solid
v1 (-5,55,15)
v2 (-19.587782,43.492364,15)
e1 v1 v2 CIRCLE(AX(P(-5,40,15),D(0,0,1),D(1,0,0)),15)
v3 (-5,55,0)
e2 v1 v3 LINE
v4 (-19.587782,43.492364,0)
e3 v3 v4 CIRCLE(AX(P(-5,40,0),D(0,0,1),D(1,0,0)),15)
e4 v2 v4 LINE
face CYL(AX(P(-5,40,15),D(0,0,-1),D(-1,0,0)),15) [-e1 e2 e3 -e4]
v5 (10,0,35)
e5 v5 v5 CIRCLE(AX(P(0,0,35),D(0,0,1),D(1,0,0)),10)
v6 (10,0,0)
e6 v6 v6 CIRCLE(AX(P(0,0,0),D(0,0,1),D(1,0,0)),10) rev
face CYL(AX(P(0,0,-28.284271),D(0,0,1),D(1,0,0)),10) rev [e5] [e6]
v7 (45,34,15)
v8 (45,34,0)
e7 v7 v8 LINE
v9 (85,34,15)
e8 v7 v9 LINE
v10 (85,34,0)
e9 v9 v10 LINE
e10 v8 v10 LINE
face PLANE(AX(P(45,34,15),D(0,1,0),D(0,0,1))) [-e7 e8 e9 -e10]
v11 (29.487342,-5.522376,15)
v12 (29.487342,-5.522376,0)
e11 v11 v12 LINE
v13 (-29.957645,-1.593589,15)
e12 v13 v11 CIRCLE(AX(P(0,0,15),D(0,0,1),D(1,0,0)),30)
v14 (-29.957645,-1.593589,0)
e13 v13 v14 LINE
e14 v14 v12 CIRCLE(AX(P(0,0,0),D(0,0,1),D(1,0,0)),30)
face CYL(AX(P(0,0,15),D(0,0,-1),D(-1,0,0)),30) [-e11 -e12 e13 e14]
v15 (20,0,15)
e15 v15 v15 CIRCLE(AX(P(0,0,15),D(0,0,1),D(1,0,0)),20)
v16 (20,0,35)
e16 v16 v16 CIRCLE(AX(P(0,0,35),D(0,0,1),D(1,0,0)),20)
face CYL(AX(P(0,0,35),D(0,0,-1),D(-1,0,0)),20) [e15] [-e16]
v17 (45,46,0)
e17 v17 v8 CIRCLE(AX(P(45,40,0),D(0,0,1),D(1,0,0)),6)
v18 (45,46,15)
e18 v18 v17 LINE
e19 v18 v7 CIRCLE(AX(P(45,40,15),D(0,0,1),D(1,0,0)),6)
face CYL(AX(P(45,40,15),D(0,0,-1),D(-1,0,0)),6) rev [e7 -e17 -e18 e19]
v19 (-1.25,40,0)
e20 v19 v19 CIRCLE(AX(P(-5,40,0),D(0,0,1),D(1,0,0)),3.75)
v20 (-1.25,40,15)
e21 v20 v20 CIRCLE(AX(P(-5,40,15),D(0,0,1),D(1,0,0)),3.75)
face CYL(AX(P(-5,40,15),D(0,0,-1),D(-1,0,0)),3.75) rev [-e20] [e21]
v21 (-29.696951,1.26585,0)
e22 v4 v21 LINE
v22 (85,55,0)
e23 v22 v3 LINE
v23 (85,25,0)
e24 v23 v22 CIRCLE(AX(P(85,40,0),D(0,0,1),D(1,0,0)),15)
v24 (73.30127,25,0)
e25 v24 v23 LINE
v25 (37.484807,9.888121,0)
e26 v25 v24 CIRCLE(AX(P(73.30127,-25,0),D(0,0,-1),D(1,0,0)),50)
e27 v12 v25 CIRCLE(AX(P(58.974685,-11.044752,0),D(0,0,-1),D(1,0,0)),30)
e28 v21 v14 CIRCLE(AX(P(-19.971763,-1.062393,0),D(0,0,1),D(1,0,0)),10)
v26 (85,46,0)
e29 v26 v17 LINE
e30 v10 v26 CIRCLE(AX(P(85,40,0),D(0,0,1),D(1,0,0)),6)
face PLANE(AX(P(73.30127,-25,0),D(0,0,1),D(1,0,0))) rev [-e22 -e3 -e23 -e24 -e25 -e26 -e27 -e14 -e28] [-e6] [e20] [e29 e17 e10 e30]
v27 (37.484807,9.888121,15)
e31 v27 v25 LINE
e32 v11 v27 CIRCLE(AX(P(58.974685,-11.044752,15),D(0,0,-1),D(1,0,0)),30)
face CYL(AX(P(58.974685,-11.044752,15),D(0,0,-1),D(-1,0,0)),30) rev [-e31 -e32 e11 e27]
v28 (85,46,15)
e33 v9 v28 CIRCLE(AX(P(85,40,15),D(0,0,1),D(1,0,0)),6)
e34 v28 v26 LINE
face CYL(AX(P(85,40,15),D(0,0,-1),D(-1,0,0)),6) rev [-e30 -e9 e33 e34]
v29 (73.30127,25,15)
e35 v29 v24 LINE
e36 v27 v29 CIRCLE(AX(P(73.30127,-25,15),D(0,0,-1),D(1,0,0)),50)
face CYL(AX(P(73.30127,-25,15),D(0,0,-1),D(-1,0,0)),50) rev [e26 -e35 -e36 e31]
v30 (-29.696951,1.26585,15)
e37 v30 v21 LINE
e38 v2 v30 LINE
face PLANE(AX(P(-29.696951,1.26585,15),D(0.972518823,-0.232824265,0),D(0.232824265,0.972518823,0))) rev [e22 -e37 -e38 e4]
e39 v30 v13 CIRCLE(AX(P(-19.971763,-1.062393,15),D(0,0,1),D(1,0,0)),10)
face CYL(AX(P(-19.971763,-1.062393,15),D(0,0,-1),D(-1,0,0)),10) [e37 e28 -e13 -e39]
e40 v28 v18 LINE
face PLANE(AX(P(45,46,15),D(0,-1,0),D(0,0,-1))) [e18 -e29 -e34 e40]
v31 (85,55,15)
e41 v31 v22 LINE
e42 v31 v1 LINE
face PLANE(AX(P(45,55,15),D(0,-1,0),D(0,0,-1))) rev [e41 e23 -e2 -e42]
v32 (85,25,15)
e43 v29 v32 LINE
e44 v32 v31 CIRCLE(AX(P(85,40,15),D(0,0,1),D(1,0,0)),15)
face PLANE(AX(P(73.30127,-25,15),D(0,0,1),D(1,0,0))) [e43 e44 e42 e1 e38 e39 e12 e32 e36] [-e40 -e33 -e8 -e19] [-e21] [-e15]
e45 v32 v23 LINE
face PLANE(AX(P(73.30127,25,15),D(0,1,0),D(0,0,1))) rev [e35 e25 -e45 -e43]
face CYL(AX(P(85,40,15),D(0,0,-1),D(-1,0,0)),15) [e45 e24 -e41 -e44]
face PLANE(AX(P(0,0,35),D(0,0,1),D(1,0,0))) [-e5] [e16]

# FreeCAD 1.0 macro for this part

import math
import FreeCAD as App
import Part
import Sketcher
Q = App.Units.Quantity

doc = App.newDocument("Part")
params = doc.addObject("Spreadsheet::Sheet", "Params")
for row, (alias, value) in enumerate([
    ("sketch1_radius", "15 mm"),
    ("sketch1_radius2", "10 mm"),
    ("sketch1_radius3", "30 mm"),
    ("sketch1_radius4", "50 mm"),
    ("sketch1_radius5", "6 mm"),
    ("pad1_length", "15 mm"),
    ("sketch2_diameter", "40 mm"),
    ("pad2_length", "20 mm"),
    ("sketch3_diameter", "20 mm"),
    ("pocket1_length", "35 mm"),
], start=1):
    params.set(f"A{row}", alias)
    params.set(f"B{row}", "=" + value)
    params.setAlias(f"B{row}", alias)

body = doc.addObject("PartDesign::Body", "Body")

sketch1 = body.newObject("Sketcher::SketchObject", "Sketch")
sketch1.AttachmentSupport = (doc.getObject("XY_Plane"), [""])
sketch1.MapMode = "FlatFace"
sketch1.addGeometry(Part.ArcOfCircle(Part.Circle(App.Vector(85, 40, 0), App.Vector(0, 0, 1), 15), math.radians(-90), math.radians(90)), False)
sketch1.addGeometry(Part.LineSegment(App.Vector(85, 55, 0), App.Vector(-5, 55, 0)), False)
sketch1.addGeometry(Part.ArcOfCircle(Part.Circle(App.Vector(-5, 40, 0), App.Vector(0, 0, 1), 15), math.radians(90), math.radians(167)), False)
sketch1.addGeometry(Part.LineSegment(App.Vector(-19.6, 43.5, 0), App.Vector(-29.7, 1.3, 0)), False)
sketch1.addGeometry(Part.ArcOfCircle(Part.Circle(App.Vector(-20, -1.1, 0), App.Vector(0, 0, 1), 10), math.radians(166.54), math.radians(183.04)), False)
sketch1.addGeometry(Part.ArcOfCircle(Part.Circle(App.Vector(0, 0, 0), App.Vector(0, 0, 1), 30), math.radians(-177), math.radians(-11)), False)
sketch1.addGeometry(Part.ArcOfCircle(Part.Circle(App.Vector(59, -11, 0), App.Vector(0, 0, 1), 30), math.radians(136), math.radians(169)), False)
sketch1.addGeometry(Part.ArcOfCircle(Part.Circle(App.Vector(73.3, -25, 0), App.Vector(0, 0, 1), 50), math.radians(90), math.radians(136)), False)
sketch1.addGeometry(Part.LineSegment(App.Vector(73.3, 25, 0), App.Vector(85, 25, 0)), False)
sketch1.addGeometry(Part.LineSegment(App.Vector(45, 46, 0), App.Vector(85, 46, 0)), False)
sketch1.addGeometry(Part.ArcOfCircle(Part.Circle(App.Vector(85, 40, 0), App.Vector(0, 0, 1), 6), math.radians(-90), math.radians(90)), False)
sketch1.addGeometry(Part.LineSegment(App.Vector(85, 34, 0), App.Vector(45, 34, 0)), False)
sketch1.addGeometry(Part.ArcOfCircle(Part.Circle(App.Vector(45, 40, 0), App.Vector(0, 0, 1), 6), math.radians(90), math.radians(270)), False)
sketch1.addGeometry(Part.Circle(App.Vector(-5, 40, 0), App.Vector(0, 0, 1), 3.8), False)
sketch1.addConstraint(Sketcher.Constraint("Tangent", 0, 2, 1, 1))
sketch1.addConstraint(Sketcher.Constraint("Tangent", 1, 2, 2, 1))
sketch1.addConstraint(Sketcher.Constraint("Tangent", 2, 2, 3, 1))
sketch1.addConstraint(Sketcher.Constraint("Tangent", 3, 2, 4, 1))
sketch1.addConstraint(Sketcher.Constraint("Tangent", 4, 2, 5, 1))
sketch1.addConstraint(Sketcher.Constraint("Tangent", 5, 2, 6, 2))
sketch1.addConstraint(Sketcher.Constraint("Tangent", 6, 1, 7, 2))
sketch1.addConstraint(Sketcher.Constraint("Tangent", 7, 1, 8, 1))
sketch1.addConstraint(Sketcher.Constraint("Tangent", 8, 2, 0, 1))
sketch1.addConstraint(Sketcher.Constraint("Tangent", 9, 2, 10, 2))
sketch1.addConstraint(Sketcher.Constraint("Tangent", 10, 1, 11, 1))
sketch1.addConstraint(Sketcher.Constraint("Tangent", 11, 2, 12, 2))
sketch1.addConstraint(Sketcher.Constraint("Tangent", 12, 1, 9, 1))
sketch1.addConstraint(Sketcher.Constraint("Horizontal", 1))
sketch1.addConstraint(Sketcher.Constraint("Horizontal", 8))
sketch1.addConstraint(Sketcher.Constraint("Horizontal", 9))
sketch1.addConstraint(Sketcher.Constraint("Horizontal", 11))
sketch1.addConstraint(Sketcher.Constraint("Coincident", 5, 3, -1, 1))
sketch1.addConstraint(Sketcher.Constraint("Coincident", 10, 3, 0, 3))
sketch1.addConstraint(Sketcher.Constraint("Coincident", 13, 3, 2, 3))
sketch1.addConstraint(Sketcher.Constraint("Equal", 0, 2))
sketch1.addConstraint(Sketcher.Constraint("Equal", 5, 6))
sketch1.addConstraint(Sketcher.Constraint("Radius", 0, Q("15 mm")))
sketch1.addConstraint(Sketcher.Constraint("Radius", 4, Q("10 mm")))
sketch1.addConstraint(Sketcher.Constraint("Radius", 5, Q("30 mm")))
sketch1.addConstraint(Sketcher.Constraint("Radius", 7, Q("50 mm")))
sketch1.addConstraint(Sketcher.Constraint("Radius", 10, Q("6 mm")))
sketch1.addConstraint(Sketcher.Constraint("Diameter", 13, Q("7.5 mm")))
sketch1.addConstraint(Sketcher.Constraint("DistanceX", 1, 2, 1, 1, Q("90 mm")))
sketch1.addConstraint(Sketcher.Constraint("DistanceX", 9, 1, 9, 2, Q("40 mm")))
sketch1.addConstraint(Sketcher.Constraint("DistanceX", -1, 1, 0, 3, Q("85 mm")))
sketch1.addConstraint(Sketcher.Constraint("DistanceY", -1, 1, 0, 3, Q("40 mm")))
sketch1.addConstraint(Sketcher.Constraint("DistanceX", 8, 1, 8, 2, Q("11.69873 mm")))
sketch1.addConstraint(Sketcher.Constraint("Distance", 3, Q("43.41974 mm")))
sketch1.setExpression("Constraints[22]", "Params.sketch1_radius")
sketch1.setExpression("Constraints[23]", "Params.sketch1_radius2")
sketch1.setExpression("Constraints[24]", "Params.sketch1_radius3")
sketch1.setExpression("Constraints[25]", "Params.sketch1_radius4")
sketch1.setExpression("Constraints[26]", "Params.sketch1_radius5")
pad1 = body.newObject("PartDesign::Pad", "Pad")
pad1.Profile = sketch1
pad1.setExpression("Length", "Params.pad1_length")

sketch2 = body.newObject("Sketcher::SketchObject", "Sketch001")
sketch2.AttachmentSupport = (doc.getObject("XY_Plane"), [""])
sketch2.MapMode = "FlatFace"
sketch2.AttachmentOffset = App.Placement(App.Vector(0, 0, 15), App.Rotation())
sketch2.addGeometry(Part.Circle(App.Vector(0, 0, 0), App.Vector(0, 0, 1), 20), False)
sketch2.addConstraint(Sketcher.Constraint("Coincident", 0, 3, -1, 1))
sketch2.addConstraint(Sketcher.Constraint("Diameter", 0, Q("40 mm")))
sketch2.setExpression("Constraints[1]", "Params.sketch2_diameter")
pad2 = body.newObject("PartDesign::Pad", "Pad001")
pad2.Profile = sketch2
pad2.setExpression("Length", "Params.pad2_length")

sketch3 = body.newObject("Sketcher::SketchObject", "Sketch002")
sketch3.AttachmentSupport = (doc.getObject("XY_Plane"), [""])
sketch3.MapMode = "FlatFace"
sketch3.AttachmentOffset = App.Placement(App.Vector(0, 0, 35), App.Rotation())
sketch3.addGeometry(Part.Circle(App.Vector(0, 0, 0), App.Vector(0, 0, 1), 10), False)
sketch3.addConstraint(Sketcher.Constraint("Coincident", 0, 3, -1, 1))
sketch3.addConstraint(Sketcher.Constraint("Diameter", 0, Q("20 mm")))
sketch3.setExpression("Constraints[1]", "Params.sketch3_diameter")
pocket1 = body.newObject("PartDesign::Pocket", "Pocket")
pocket1.Profile = sketch3
pocket1.setExpression("Length", "Params.pocket1_length")

doc.recompute()
